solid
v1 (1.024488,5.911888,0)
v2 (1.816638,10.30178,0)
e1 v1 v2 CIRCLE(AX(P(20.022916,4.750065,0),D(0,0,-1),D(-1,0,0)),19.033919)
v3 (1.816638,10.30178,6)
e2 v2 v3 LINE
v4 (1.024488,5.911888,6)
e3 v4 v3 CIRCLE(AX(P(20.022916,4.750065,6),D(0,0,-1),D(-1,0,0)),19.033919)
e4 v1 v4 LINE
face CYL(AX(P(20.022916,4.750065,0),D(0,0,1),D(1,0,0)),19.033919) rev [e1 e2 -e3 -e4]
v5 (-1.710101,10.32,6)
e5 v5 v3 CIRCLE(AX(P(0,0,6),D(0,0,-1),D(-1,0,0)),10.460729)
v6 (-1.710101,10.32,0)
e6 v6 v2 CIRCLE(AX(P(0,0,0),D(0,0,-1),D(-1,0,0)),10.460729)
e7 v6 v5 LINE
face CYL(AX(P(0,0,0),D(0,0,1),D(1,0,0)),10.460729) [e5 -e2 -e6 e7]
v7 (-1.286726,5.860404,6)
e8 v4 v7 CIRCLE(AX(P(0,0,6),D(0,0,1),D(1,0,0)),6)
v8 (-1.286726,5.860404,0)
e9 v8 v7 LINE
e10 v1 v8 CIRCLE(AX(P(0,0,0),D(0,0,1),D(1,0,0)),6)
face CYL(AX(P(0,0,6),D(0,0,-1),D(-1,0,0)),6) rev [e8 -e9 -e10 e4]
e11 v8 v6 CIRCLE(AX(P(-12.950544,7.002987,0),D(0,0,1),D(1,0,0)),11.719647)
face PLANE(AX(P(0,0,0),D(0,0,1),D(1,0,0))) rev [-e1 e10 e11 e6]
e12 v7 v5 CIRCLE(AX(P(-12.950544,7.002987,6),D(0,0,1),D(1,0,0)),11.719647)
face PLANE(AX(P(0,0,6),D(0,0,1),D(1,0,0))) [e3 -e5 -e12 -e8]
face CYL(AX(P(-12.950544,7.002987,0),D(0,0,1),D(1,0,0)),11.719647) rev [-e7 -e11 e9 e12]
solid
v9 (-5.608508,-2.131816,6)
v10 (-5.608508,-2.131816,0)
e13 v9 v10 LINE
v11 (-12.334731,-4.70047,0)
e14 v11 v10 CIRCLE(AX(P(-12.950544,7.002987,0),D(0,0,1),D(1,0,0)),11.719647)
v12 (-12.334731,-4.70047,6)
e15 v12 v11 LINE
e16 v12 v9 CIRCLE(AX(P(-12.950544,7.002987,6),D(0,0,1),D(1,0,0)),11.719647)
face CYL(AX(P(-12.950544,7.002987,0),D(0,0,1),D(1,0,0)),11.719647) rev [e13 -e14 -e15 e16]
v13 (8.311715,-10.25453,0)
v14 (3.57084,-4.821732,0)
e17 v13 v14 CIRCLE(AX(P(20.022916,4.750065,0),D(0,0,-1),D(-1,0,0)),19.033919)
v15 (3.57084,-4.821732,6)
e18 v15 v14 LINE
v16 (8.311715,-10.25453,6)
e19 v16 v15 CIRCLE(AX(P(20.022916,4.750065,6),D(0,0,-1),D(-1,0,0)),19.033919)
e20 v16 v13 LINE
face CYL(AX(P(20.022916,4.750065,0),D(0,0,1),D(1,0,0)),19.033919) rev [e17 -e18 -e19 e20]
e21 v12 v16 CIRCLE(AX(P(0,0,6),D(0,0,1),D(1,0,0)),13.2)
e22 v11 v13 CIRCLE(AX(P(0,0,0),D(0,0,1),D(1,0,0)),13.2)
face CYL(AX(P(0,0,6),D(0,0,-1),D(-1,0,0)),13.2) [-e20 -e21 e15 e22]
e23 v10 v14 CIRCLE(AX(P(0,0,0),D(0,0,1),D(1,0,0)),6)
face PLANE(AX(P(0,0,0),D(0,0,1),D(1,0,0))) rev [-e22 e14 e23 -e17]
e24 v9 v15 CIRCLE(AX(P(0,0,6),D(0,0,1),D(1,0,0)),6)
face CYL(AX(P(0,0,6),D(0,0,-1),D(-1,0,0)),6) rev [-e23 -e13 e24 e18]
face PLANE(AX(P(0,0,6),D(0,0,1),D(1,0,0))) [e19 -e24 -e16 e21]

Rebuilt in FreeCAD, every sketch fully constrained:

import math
import FreeCAD as App
import Part
import Sketcher
Q = App.Units.Quantity

doc = App.newDocument("Part")
params = doc.addObject("Spreadsheet::Sheet", "Params")
for row, (alias, value) in enumerate([
    ("sketch1_diameter", "12 mm"),
    ("sketch1_diameter2", "26.4 mm"),
    ("pad1_length", "6 mm"),
    ("sketch2_radius", "13.2 mm"),
], start=1):
    params.set(f"A{row}", alias)
    params.set(f"B{row}", "=" + value)
    params.setAlias(f"B{row}", alias)

body = doc.addObject("PartDesign::Body", "Body")
body.AllowCompound = True

sketch1 = doc.addObject("Sketcher::SketchObject", "Sketch")
body.addObject(sketch1)
sketch1.AttachmentSupport = (doc.XY_Plane, [""])
sketch1.MapMode = "FlatFace"
sketch1.addGeometry(Part.Circle(App.Vector(0, 0, 0), App.Vector(0, 0, 1), 13), False)
sketch1.addGeometry(Part.Circle(App.Vector(0, 0, 0), App.Vector(0, 0, 1), 6), False)
sketch1.addConstraint(Sketcher.Constraint("Coincident", 0, 3, -1, 1))
sketch1.addConstraint(Sketcher.Constraint("Coincident", 1, 3, -1, 1))
sketch1.addConstraint(Sketcher.Constraint("Diameter", 1, Q("12 mm")))
sketch1.addConstraint(Sketcher.Constraint("Diameter", 0, Q("26.4 mm")))
sketch1.setExpression("Constraints[2]", "Params.sketch1_diameter")
sketch1.setExpression("Constraints[3]", "Params.sketch1_diameter2")
pad1 = doc.addObject("PartDesign::Pad", "Pad")
body.addObject(pad1)
pad1.Profile = sketch1
pad1.setExpression("Length", "Params.pad1_length")

sketch2 = doc.addObject("Sketcher::SketchObject", "Sketch001")
body.addObject(sketch2)
sketch2.AttachmentSupport = (doc.XY_Plane, [""])
sketch2.MapMode = "FlatFace"
sketch2.AttachmentOffset = App.Placement(App.Vector(0, 0, 6), App.Rotation())
sketch2.addGeometry(Part.ArcOfCircle(Part.Circle(App.Vector(0, 0, 0), App.Vector(0, 0, 1), 13.2), math.radians(78), math.radians(102)), False)
sketch2.addGeometry(Part.ArcOfCircle(Part.Circle(App.Vector(-13, 7, 0), App.Vector(0, 0, 1), 11.7), math.radians(30), math.radians(376)), False)
sketch2.addGeometry(Part.ArcOfCircle(Part.Circle(App.Vector(0, 0, 0), App.Vector(0, 0, 1), 10.5), math.radians(80), math.radians(99.41)), False)
sketch2.addGeometry(Part.ArcOfCircle(Part.Circle(App.Vector(20, 4.8, 0), App.Vector(0, 0, 1), 19), math.radians(163), math.radians(515)), False)
sketch2.addConstraint(Sketcher.Constraint("Coincident", 0, 2, 1, 1))
sketch2.addConstraint(Sketcher.Constraint("Coincident", 1, 2, 2, 2))
sketch2.addConstraint(Sketcher.Constraint("Coincident", 2, 1, 3, 1))
sketch2.addConstraint(Sketcher.Constraint("Coincident", 3, 2, 0, 1))
sketch2.addConstraint(Sketcher.Constraint("Coincident", 0, 3, -1, 1))
sketch2.addConstraint(Sketcher.Constraint("Coincident", 2, 3, -1, 1))
sketch2.addConstraint(Sketcher.Constraint("Horizontal", 0, 2, 3, 2))
sketch2.addConstraint(Sketcher.Constraint("Radius", 0, Q("13.2 mm")))
sketch2.addConstraint(Sketcher.Constraint("DistanceY", -1, 1, 1, 2, Q("10.32 mm")))
sketch2.addConstraint(Sketcher.Constraint("Radius", 2, Q("10.460729 mm")))
sketch2.addConstraint(Sketcher.Constraint("Radius", 3, Q("19.033919 mm")))
sketch2.addConstraint(Sketcher.Constraint("Radius", 1, Q("11.719647 mm")))
sketch2.addConstraint(Sketcher.Constraint("DistanceY", 1, 3, 0, 2, Q("5.8923 mm")))
sketch2.addConstraint(Sketcher.Constraint("DistanceX", -1, 1, 2, 1, Q("1.816638 mm")))
sketch2.setExpression("Constraints[7]", "Params.sketch2_radius")
pocket1 = doc.addObject("PartDesign::Pocket", "Pocket")
body.addObject(pocket1)
pocket1.Profile = sketch2
pocket1.Type = "ThroughAll"

doc.recompute()
